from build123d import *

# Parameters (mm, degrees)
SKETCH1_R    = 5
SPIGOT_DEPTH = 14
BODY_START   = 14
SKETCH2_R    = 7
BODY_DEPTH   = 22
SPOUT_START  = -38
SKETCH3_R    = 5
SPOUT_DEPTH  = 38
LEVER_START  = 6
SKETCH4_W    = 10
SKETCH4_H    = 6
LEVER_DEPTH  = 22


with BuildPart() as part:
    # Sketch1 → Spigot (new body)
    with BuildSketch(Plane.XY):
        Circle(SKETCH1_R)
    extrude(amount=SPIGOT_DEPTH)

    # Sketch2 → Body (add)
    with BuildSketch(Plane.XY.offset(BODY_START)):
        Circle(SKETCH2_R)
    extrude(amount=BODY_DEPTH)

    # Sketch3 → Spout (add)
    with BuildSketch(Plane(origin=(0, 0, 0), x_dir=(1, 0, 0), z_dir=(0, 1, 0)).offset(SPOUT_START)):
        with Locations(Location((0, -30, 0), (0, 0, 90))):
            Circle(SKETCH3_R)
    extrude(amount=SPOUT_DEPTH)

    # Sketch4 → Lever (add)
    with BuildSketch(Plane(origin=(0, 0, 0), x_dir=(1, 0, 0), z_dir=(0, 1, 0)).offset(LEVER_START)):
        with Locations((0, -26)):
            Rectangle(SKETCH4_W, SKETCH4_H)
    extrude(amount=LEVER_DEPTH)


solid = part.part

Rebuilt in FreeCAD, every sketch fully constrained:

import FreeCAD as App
import Part
import Sketcher
from FreeCAD import Vector

doc = App.newDocument("Part")
body = doc.addObject("PartDesign::Body", "Body")

# Sketch on XY plane
sketch1 = body.newObject("Sketcher::SketchObject", "Sketch")
sketch1.AttachmentSupport = (doc.getObject("XY_Plane"), [""])
sketch1.MapMode = "FlatFace"
sketch1.addGeometry(Part.Circle(Vector(0, 0, 0), Vector(0, 0, 1), 5), False)
sketch1.addConstraint([
    Sketcher.Constraint("Coincident", 0, 3, -1, 1),
    Sketcher.Constraint("Diameter", 0, 10.0),
])
pad1 = body.newObject("PartDesign::Pad", "Pad")
pad1.Profile = sketch1
pad1.Length = 14

# Sketch on XY plane
sketch2 = body.newObject("Sketcher::SketchObject", "Sketch001")
sketch2.AttachmentSupport = (doc.getObject("XY_Plane"), [""])
sketch2.MapMode = "FlatFace"
sketch2.AttachmentOffset = App.Placement(Vector(0, 0, 14), App.Rotation())
sketch2.addGeometry(Part.Circle(Vector(0, 0, 0), Vector(0, 0, 1), 7), False)
sketch2.addConstraint([
    Sketcher.Constraint("Coincident", 0, 3, -1, 1),
    Sketcher.Constraint("Diameter", 0, 14.0),
])
pad2 = body.newObject("PartDesign::Pad", "Pad001")
pad2.Profile = sketch2
pad2.Length = 22

# Sketch on XZ plane
sketch3 = body.newObject("Sketcher::SketchObject", "Sketch002")
sketch3.AttachmentSupport = (doc.getObject("XZ_Plane"), [""])
sketch3.MapMode = "FlatFace"
sketch3.AttachmentOffset = App.Placement(Vector(0, 0, 38), App.Rotation())
sketch3.addGeometry(Part.Circle(Vector(0, 30, 0), Vector(0, 0, 1), 5), False)
sketch3.addConstraint([
    Sketcher.Constraint("PointOnObject", 0, 3, -2),
    Sketcher.Constraint("Diameter", 0, 10.0),
    Sketcher.Constraint("DistanceY", -1, 1, 0, 3, 30.0),
])
pad3 = body.newObject("PartDesign::Pad", "Pad002")
pad3.Profile = sketch3
pad3.Length = 38
pad3.Reversed = True

# Sketch on XZ plane
sketch4 = body.newObject("Sketcher::SketchObject", "Sketch003")
sketch4.AttachmentSupport = (doc.getObject("XZ_Plane"), [""])
sketch4.MapMode = "FlatFace"
sketch4.AttachmentOffset = App.Placement(Vector(0, 0, -6), App.Rotation())
sketch4.addGeometry([
    Part.LineSegment(Vector(-5, 23, 0), Vector(-5, 29, 0)),
    Part.LineSegment(Vector(-5, 29, 0), Vector(5, 29, 0)),
    Part.LineSegment(Vector(5, 29, 0), Vector(5, 23, 0)),
    Part.LineSegment(Vector(5, 23, 0), Vector(-5, 23, 0)),
], False)
sketch4.addConstraint([
    Sketcher.Constraint("Coincident", 0, 2, 1, 1),
    Sketcher.Constraint("Coincident", 1, 2, 2, 1),
    Sketcher.Constraint("Coincident", 2, 2, 3, 1),
    Sketcher.Constraint("Coincident", 3, 2, 0, 1),
    Sketcher.Constraint("Vertical", 0),
    Sketcher.Constraint("Horizontal", 1),
    Sketcher.Constraint("Vertical", 2),
    Sketcher.Constraint("Horizontal", 3),
    Sketcher.Constraint("DistanceX", 1, 1, 1, 2, 10.0),
    Sketcher.Constraint("DistanceY", 0, 1, 0, 2, 6.0),
    Sketcher.Constraint("DistanceX", 0, 2, -1, 1, 5.0),
    Sketcher.Constraint("DistanceY", -1, 1, 0, 2, 29.0),
])
pad4 = body.newObject("PartDesign::Pad", "Pad003")
pad4.Profile = sketch4
pad4.Length = 22
pad4.Reversed = True

doc.recompute()
